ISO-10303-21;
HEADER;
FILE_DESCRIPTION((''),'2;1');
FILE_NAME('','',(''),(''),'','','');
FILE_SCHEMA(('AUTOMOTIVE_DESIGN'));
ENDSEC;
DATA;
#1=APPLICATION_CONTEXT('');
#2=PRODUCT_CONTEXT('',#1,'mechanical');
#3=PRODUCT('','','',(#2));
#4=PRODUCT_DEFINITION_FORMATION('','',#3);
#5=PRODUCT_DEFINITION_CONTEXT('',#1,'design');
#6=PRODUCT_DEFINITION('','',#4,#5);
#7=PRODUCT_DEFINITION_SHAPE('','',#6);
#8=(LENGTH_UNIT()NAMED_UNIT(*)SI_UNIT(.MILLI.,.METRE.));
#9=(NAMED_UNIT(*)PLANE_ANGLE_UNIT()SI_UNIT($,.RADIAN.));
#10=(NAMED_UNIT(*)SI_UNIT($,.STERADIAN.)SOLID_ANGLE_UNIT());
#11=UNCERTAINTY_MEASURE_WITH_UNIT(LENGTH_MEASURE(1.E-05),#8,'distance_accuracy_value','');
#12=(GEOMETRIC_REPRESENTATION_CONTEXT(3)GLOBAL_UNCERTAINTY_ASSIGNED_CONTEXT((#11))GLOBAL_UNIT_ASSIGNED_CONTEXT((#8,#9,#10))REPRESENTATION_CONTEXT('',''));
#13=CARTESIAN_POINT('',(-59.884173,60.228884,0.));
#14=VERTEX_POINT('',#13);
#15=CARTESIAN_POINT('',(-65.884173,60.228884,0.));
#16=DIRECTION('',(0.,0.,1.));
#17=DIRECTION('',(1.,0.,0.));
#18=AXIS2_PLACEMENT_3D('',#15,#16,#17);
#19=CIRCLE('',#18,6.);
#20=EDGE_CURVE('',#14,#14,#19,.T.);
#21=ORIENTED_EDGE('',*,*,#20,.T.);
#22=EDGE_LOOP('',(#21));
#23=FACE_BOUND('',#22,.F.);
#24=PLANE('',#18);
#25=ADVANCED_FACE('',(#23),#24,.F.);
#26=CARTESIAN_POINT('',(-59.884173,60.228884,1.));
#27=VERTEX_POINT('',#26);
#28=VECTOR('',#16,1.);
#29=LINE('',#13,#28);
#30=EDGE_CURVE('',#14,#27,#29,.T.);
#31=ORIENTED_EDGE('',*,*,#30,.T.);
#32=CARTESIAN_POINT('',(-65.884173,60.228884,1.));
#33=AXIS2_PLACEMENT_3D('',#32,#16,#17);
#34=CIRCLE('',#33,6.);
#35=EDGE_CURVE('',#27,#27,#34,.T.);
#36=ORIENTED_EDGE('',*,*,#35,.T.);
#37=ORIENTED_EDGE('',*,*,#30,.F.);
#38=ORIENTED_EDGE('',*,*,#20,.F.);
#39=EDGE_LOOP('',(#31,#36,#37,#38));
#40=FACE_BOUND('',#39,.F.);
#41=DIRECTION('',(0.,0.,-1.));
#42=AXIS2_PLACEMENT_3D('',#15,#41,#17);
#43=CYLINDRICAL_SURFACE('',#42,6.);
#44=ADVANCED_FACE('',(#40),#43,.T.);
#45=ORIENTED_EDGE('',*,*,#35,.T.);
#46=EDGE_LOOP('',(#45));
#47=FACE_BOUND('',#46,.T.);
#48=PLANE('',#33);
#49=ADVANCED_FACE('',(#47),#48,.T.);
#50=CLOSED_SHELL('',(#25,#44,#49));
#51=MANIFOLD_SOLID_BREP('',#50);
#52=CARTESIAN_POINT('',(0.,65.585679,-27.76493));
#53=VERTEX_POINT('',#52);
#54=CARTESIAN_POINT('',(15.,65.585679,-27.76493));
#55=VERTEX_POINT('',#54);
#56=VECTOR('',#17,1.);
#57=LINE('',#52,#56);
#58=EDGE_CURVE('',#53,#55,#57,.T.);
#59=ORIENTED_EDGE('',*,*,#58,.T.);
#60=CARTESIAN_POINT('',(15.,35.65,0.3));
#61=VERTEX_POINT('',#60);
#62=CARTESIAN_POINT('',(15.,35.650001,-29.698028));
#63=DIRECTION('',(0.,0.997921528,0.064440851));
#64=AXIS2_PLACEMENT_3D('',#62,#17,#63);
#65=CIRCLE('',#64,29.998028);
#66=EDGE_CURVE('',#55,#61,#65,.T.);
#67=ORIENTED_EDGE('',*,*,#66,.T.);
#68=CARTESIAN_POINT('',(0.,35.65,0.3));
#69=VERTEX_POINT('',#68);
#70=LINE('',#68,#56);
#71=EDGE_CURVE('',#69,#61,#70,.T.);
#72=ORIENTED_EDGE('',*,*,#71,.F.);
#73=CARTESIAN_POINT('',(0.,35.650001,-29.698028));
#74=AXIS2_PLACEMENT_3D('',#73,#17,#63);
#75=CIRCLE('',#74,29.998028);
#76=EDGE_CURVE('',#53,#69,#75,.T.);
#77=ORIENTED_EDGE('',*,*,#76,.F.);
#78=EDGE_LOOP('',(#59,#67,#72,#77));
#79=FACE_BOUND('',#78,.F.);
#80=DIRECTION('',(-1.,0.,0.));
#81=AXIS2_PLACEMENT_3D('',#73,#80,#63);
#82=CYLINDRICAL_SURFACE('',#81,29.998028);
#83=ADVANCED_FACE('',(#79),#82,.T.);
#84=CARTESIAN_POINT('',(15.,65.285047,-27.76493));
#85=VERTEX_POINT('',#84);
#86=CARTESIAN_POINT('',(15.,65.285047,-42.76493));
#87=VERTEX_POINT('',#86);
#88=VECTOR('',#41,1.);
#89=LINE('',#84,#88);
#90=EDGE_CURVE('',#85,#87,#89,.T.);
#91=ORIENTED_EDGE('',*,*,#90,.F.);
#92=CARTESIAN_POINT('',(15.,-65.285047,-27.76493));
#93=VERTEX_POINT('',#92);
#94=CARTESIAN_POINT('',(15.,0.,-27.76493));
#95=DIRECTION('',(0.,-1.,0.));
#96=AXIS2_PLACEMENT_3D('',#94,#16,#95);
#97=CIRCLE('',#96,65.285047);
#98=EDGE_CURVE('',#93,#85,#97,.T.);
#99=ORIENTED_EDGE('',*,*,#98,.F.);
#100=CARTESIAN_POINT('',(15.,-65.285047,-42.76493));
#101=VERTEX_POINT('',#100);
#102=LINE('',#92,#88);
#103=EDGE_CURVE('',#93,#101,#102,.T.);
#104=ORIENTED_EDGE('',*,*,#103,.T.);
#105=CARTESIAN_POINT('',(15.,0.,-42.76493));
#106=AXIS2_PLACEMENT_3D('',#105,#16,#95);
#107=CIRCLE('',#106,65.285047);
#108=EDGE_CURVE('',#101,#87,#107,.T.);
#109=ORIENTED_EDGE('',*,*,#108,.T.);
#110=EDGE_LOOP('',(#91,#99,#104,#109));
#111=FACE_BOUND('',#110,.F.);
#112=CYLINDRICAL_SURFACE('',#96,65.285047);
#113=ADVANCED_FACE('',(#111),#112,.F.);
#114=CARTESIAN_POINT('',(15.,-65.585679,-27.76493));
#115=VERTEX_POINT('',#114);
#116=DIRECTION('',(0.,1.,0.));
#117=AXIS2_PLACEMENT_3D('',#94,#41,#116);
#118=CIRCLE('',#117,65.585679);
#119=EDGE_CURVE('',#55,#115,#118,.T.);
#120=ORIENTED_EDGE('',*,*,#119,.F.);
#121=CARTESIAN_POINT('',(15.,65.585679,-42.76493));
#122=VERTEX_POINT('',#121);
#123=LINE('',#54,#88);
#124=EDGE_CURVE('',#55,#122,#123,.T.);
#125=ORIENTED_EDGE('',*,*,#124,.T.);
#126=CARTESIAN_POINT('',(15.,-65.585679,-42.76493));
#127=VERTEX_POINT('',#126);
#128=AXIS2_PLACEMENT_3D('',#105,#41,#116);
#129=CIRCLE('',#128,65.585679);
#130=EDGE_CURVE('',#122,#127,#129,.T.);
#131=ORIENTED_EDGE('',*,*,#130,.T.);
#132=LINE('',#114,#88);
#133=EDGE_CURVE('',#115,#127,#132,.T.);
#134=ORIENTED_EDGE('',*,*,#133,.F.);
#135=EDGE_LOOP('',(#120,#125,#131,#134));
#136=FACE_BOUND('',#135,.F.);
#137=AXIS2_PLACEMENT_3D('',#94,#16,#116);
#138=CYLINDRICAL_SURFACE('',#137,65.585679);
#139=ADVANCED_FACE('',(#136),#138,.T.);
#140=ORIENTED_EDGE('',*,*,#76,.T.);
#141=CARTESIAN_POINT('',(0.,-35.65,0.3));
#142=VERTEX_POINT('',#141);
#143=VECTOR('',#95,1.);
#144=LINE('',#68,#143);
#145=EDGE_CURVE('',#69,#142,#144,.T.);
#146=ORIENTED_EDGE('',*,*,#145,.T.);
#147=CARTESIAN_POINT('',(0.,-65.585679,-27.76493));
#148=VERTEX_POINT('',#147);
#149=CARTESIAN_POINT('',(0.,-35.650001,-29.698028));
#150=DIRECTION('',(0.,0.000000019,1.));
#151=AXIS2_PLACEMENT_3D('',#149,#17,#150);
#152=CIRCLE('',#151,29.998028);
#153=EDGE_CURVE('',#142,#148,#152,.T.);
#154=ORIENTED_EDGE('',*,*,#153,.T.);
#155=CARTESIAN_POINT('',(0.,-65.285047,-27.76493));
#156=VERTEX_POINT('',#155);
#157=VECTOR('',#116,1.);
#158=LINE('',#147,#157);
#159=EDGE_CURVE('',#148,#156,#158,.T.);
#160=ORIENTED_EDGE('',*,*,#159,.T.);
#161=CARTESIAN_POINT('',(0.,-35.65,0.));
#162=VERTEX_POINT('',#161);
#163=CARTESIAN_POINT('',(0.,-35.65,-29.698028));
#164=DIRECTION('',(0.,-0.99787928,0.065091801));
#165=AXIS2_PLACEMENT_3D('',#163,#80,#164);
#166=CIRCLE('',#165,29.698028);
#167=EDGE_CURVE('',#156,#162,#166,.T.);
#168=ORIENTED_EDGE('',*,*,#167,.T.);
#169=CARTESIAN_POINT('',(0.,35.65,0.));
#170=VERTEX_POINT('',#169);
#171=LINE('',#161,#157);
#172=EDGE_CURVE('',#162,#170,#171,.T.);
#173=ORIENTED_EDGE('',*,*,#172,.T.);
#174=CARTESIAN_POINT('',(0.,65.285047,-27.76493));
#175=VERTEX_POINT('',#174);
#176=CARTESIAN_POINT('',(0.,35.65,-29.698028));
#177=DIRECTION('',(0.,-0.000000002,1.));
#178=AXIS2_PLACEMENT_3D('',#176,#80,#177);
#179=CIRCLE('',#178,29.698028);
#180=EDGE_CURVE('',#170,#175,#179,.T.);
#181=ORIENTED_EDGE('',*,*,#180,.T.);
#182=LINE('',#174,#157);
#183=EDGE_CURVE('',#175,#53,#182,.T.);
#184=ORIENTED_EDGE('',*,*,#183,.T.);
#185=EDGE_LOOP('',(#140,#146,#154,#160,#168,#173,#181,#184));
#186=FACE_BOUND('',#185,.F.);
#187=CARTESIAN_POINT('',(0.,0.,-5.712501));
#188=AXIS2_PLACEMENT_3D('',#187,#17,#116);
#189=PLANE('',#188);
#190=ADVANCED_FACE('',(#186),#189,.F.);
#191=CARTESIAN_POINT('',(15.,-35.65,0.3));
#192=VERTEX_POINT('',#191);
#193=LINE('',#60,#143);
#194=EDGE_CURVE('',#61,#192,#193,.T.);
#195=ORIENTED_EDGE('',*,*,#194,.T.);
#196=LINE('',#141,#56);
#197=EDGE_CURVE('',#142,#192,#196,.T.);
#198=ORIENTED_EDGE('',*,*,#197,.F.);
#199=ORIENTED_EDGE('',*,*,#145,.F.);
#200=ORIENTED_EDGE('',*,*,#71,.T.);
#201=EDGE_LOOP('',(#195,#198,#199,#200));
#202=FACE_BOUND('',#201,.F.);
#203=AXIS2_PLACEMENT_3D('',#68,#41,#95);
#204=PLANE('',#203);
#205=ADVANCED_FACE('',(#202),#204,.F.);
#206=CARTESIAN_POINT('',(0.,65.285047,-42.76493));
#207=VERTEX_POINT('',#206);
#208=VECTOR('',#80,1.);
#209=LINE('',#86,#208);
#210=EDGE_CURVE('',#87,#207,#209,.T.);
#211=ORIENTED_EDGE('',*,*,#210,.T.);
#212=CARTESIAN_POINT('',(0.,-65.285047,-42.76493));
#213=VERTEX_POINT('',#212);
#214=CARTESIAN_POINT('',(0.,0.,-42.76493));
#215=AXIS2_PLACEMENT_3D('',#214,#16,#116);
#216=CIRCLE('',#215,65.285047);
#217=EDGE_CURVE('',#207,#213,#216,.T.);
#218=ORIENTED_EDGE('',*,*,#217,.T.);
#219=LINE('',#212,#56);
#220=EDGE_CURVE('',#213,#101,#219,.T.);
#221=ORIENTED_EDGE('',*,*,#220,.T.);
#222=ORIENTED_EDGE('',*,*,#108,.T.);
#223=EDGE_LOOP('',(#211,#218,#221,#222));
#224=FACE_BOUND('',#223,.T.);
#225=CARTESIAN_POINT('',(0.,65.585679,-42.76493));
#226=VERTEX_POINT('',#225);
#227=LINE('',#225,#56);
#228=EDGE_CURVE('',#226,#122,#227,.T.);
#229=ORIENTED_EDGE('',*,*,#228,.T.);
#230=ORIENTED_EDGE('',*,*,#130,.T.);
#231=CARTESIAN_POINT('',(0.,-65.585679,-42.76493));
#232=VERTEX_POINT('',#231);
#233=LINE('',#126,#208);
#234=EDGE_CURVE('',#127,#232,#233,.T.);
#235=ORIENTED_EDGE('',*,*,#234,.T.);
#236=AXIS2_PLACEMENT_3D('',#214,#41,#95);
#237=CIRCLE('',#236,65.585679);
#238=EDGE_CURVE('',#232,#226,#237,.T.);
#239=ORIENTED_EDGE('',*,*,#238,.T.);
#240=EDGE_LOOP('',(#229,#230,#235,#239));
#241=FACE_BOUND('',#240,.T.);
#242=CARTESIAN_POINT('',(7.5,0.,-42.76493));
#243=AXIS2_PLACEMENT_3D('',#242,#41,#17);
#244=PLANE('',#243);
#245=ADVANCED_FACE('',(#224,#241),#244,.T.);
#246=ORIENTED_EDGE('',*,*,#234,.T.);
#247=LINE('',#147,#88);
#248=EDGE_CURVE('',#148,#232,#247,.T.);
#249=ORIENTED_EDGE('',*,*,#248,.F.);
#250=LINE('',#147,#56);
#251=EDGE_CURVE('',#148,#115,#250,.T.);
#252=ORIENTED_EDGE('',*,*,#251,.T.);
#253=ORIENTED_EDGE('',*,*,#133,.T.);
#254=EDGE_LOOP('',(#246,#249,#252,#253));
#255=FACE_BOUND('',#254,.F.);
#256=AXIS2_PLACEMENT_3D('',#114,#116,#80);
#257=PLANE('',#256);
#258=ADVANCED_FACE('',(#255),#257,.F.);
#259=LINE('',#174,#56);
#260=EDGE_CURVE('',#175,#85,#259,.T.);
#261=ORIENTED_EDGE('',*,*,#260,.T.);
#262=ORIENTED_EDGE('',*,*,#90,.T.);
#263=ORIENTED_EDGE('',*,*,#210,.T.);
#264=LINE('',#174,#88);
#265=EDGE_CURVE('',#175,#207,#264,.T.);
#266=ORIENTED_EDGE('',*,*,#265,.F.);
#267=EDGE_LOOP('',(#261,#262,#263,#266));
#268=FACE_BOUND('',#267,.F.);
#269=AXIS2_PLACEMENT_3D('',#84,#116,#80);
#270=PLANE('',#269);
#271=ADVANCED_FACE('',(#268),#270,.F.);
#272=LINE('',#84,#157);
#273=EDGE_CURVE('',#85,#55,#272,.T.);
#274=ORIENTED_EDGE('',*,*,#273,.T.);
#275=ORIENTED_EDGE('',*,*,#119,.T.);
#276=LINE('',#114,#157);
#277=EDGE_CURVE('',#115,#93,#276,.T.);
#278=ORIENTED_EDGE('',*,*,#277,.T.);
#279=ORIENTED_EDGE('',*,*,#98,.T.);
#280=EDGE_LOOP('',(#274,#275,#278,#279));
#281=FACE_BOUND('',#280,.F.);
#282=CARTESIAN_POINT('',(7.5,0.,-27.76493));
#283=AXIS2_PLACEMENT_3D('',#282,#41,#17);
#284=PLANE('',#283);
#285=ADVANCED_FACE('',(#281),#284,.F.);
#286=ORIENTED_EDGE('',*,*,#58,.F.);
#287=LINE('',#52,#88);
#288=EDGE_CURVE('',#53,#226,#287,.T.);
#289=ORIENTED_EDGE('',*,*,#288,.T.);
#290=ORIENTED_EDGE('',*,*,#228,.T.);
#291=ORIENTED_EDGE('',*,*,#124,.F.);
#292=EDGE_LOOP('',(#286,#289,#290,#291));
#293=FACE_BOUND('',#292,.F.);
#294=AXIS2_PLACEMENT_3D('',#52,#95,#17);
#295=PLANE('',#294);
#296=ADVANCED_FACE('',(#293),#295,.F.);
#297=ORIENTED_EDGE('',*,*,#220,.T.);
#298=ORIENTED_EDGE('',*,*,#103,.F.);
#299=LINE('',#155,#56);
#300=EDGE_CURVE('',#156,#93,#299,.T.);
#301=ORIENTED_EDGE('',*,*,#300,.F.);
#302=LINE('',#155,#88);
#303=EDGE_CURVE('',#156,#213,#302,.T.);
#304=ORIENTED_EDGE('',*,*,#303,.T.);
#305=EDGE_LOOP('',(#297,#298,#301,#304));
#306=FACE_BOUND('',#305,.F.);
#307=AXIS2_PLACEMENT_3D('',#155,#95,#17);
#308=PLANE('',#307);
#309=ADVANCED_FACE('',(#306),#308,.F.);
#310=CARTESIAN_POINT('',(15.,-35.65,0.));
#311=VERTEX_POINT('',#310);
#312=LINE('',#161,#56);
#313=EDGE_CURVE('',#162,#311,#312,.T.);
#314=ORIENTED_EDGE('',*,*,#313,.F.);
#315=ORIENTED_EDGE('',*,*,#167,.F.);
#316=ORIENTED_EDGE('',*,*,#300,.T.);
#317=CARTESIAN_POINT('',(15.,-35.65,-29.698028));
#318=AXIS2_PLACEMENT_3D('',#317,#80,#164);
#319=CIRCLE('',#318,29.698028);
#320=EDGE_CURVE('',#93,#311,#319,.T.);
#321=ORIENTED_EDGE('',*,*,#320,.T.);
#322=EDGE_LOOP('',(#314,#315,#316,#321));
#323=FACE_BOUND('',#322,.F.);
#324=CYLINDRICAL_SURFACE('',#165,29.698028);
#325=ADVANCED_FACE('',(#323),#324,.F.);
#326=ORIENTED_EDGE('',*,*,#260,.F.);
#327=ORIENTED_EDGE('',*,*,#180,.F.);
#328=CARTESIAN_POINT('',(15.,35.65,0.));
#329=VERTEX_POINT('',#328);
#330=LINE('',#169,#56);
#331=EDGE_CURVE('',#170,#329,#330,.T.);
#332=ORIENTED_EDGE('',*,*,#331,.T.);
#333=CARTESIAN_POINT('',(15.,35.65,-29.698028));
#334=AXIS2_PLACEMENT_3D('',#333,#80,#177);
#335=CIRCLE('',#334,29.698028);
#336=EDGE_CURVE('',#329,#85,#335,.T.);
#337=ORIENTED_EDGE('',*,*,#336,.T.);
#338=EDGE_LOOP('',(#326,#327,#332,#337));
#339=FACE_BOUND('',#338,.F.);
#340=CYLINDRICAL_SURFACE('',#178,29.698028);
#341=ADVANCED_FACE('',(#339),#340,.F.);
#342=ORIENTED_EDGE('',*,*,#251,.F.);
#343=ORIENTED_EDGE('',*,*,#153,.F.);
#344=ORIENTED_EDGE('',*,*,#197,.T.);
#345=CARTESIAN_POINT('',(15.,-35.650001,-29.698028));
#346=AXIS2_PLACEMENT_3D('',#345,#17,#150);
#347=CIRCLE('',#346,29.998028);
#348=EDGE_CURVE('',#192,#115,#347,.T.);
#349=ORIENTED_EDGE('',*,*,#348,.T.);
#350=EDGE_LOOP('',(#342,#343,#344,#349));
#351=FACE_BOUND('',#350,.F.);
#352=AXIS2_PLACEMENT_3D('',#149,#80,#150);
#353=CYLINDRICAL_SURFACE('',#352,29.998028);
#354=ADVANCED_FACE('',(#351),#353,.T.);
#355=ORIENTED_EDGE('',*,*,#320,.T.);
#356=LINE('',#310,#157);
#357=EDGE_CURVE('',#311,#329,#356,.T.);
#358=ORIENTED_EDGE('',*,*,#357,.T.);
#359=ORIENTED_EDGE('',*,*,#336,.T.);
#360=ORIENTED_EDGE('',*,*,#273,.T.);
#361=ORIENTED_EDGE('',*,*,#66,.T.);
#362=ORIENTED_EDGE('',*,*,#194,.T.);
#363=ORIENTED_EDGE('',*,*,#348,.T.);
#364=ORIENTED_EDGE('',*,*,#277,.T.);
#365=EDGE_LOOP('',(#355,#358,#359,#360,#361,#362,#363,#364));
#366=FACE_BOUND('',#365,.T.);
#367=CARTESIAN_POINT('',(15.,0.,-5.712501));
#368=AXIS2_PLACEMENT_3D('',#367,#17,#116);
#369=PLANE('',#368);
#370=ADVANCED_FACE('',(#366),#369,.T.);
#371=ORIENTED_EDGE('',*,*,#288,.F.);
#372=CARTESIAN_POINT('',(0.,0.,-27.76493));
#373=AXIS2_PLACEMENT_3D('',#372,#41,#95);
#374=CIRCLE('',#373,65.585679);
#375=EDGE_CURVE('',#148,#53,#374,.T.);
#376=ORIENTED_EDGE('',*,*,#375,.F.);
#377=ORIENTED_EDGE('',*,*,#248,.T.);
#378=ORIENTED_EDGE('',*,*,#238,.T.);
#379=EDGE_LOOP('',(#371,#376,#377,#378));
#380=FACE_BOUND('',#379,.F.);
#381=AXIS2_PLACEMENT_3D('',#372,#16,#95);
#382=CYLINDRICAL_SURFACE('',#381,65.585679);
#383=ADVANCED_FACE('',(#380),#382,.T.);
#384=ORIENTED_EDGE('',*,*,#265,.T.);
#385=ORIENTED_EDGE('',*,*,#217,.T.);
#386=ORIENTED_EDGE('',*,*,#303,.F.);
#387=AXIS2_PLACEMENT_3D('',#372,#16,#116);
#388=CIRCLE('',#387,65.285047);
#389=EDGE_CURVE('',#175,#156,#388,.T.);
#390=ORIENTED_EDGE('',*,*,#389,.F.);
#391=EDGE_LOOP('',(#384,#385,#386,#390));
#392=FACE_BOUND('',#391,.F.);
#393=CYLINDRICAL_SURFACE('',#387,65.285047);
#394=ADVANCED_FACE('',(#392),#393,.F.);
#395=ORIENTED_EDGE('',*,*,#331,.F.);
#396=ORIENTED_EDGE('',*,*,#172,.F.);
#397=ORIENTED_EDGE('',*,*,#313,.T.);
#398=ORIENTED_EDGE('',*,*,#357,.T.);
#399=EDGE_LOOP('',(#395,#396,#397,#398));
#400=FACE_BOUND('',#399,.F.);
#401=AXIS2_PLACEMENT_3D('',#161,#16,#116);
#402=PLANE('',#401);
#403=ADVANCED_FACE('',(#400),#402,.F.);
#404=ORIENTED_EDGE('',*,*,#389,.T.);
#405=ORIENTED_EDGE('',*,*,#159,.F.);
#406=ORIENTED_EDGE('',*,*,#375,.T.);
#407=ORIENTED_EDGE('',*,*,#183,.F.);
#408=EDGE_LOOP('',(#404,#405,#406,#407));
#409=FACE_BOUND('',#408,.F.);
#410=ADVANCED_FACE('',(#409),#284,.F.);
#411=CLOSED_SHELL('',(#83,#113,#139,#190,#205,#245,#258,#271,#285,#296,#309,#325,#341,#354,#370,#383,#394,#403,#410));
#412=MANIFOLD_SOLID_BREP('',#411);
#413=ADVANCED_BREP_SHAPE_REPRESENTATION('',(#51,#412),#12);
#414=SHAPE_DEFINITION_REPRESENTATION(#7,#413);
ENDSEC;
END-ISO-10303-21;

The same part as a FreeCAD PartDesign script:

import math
import FreeCAD as App
import Part
import Sketcher
from FreeCAD import Vector

doc = App.newDocument("Part")
params = doc.addObject("Spreadsheet::Sheet", "Params")
for row, (alias, value) in enumerate([
    ("sketch1_width", "71.3 mm"),
    ("pad1_length", "15 mm"),
    ("sketch2_width", "15 mm"),
    ("pad2_length", "15 mm"),
    ("sketch3_diameter", "12 mm"),
    ("pad3_length", "1 mm"),
], start=1):
    params.set(f"A{row}", alias)
    params.set(f"B{row}", "=" + value)
    params.setAlias(f"B{row}", alias)

body = doc.addObject("PartDesign::Body", "Body")

# Sketch on YZ plane
sketch1 = doc.addObject("Sketcher::SketchObject", "Sketch")
body.addObject(sketch1)
sketch1.AttachmentSupport = (doc.YZ_Plane, [""])
sketch1.MapMode = "FlatFace"
sketch1.addGeometry([
    Part.ArcOfCircle(Part.Circle(Vector(-35.65, -29.7, 0), Vector(0, 0, 1), 29.7), math.radians(90), math.radians(176)),  # 0
    Part.LineSegment(Vector(-35.65, 0, 0), Vector(35.65, 0, 0)),  # 1
    Part.ArcOfCircle(Part.Circle(Vector(35.65, -29.7, 0), Vector(0, 0, 1), 29.7), math.radians(4), math.radians(90)),  # 2
    Part.LineSegment(Vector(65.29, -27.76, 0), Vector(65.59, -27.76, 0)),  # 3
    Part.ArcOfCircle(Part.Circle(Vector(35.65, -29.7, 0), Vector(0, 0, 1), 30), math.radians(4), math.radians(90)),  # 4
    Part.LineSegment(Vector(35.65, 0.3, 0), Vector(-35.65, 0.3, 0)),  # 5
    Part.ArcOfCircle(Part.Circle(Vector(-35.65, -29.7, 0), Vector(0, 0, 1), 30), math.radians(90), math.radians(176)),  # 6
    Part.LineSegment(Vector(-65.59, -27.76, 0), Vector(-65.29, -27.76, 0)),  # 7
], False)
sketch1.addConstraint([
    Sketcher.Constraint("Tangent", 0, 1, 1, 1),
    Sketcher.Constraint("Tangent", 1, 2, 2, 2),
    Sketcher.Constraint("Coincident", 2, 1, 3, 1),
    Sketcher.Constraint("Coincident", 3, 2, 4, 1),
    Sketcher.Constraint("Tangent", 4, 2, 5, 1),
    Sketcher.Constraint("Tangent", 5, 2, 6, 1),
    Sketcher.Constraint("Coincident", 6, 2, 7, 1),
    Sketcher.Constraint("Coincident", 7, 2, 0, 2),
    Sketcher.Constraint("Horizontal", 1),
    Sketcher.Constraint("Horizontal", 3),
    Sketcher.Constraint("Horizontal", 5),
    Sketcher.Constraint("Horizontal", 7),
    Sketcher.Constraint("Coincident", 4, 3, 2, 3),
    Sketcher.Constraint("Coincident", 6, 3, 0, 3),
    Sketcher.Constraint("Equal", 0, 2),
    Sketcher.Constraint("Symmetric", 0, 1, 1, 2, -1, 1),
    Sketcher.Constraint("Horizontal", 3, 2, 6, 2),
    Sketcher.Constraint("DistanceX", 1, 1, 1, 2, 71.3),
    Sketcher.Constraint("DistanceY", -1, 1, 4, 2, 0.3),
    Sketcher.Constraint("Radius", 0, 29.698028),
    Sketcher.Constraint("DistanceY", 4, 3, 2, 1, 1.933098),
])
sketch1.setExpression("Constraints[17]", "Params.sketch1_width")
pad1 = doc.addObject("PartDesign::Pad", "Pad")
body.addObject(pad1)
pad1.Profile = sketch1
pad1.setExpression("Length", "Params.pad1_length")

# Sketch on XY plane
sketch2 = doc.addObject("Sketcher::SketchObject", "Sketch001")
body.addObject(sketch2)
sketch2.AttachmentSupport = (doc.XY_Plane, [""])
sketch2.MapMode = "FlatFace"
sketch2.AttachmentOffset = App.Placement(Vector(0, 0, -27.76493), App.Rotation())
sketch2.addGeometry([
    Part.LineSegment(Vector(0, 66, 0), Vector(15, 66, 0)),  # 0
    Part.ArcOfCircle(Part.Circle(Vector(15, 0, 0), Vector(0, 0, 1), 66), math.radians(-90), math.radians(90)),  # 1
    Part.LineSegment(Vector(15, -66, 0), Vector(0, -66, 0)),  # 2
    Part.ArcOfCircle(Part.Circle(Vector(0, 0, 0), Vector(0, 0, 1), 66), math.radians(90), math.radians(270)),  # 3
    Part.LineSegment(Vector(0, -65, 0), Vector(15, -65, 0)),  # 4
    Part.ArcOfCircle(Part.Circle(Vector(15, 0, 0), Vector(0, 0, 1), 65), math.radians(-90), math.radians(90)),  # 5
    Part.LineSegment(Vector(15, 65, 0), Vector(0, 65, 0)),  # 6
    Part.ArcOfCircle(Part.Circle(Vector(0, 0, 0), Vector(0, 0, 1), 65), math.radians(90), math.radians(270)),  # 7
], False)
sketch2.addConstraint([
    Sketcher.Constraint("Tangent", 0, 2, 1, 2),
    Sketcher.Constraint("Tangent", 1, 1, 2, 1),
    Sketcher.Constraint("Tangent", 2, 2, 3, 2),
    Sketcher.Constraint("Tangent", 3, 1, 0, 1),
    Sketcher.Constraint("Tangent", 4, 2, 5, 1),
    Sketcher.Constraint("Tangent", 5, 2, 6, 1),
    Sketcher.Constraint("Tangent", 6, 2, 7, 1),
    Sketcher.Constraint("Tangent", 7, 2, 4, 1),
    Sketcher.Constraint("Horizontal", 0),
    Sketcher.Constraint("Horizontal", 2),
    Sketcher.Constraint("Horizontal", 4),
    Sketcher.Constraint("Horizontal", 6),
    Sketcher.Constraint("Coincident", 3, 3, -1, 1),
    Sketcher.Constraint("Coincident", 7, 3, -1, 1),
    Sketcher.Constraint("Vertical", 5, 3, 0, 2),
    Sketcher.Constraint("DistanceX", 0, 1, 0, 2, 15.0),
    Sketcher.Constraint("Radius", 1, 65.585679),
    Sketcher.Constraint("Radius", 5, 65.285047),
])
sketch2.setExpression("Constraints[15]", "Params.sketch2_width")
pad2 = doc.addObject("PartDesign::Pad", "Pad001")
body.addObject(pad2)
pad2.Profile = sketch2
pad2.setExpression("Length", "Params.pad2_length")
pad2.Reversed = True
body2 = doc.addObject("PartDesign::Body", "Body001")

# Sketch on XY plane
sketch3 = doc.addObject("Sketcher::SketchObject", "Sketch002")
body2.addObject(sketch3)
sketch3.AttachmentSupport = (doc.getObject("XY_Plane001"), [""])
sketch3.MapMode = "FlatFace"
sketch3.addGeometry(Part.Circle(Vector(-66, 60, 0), Vector(0, 0, 1), 6), False)
sketch3.addConstraint([
    Sketcher.Constraint("Diameter", 0, 12.0),
    Sketcher.Constraint("DistanceX", 0, 3, -1, 1, 65.884173),
    Sketcher.Constraint("DistanceY", -1, 1, 0, 3, 60.228884),
])
sketch3.setExpression("Constraints[0]", "Params.sketch3_diameter")
pad3 = doc.addObject("PartDesign::Pad", "Pad002")
body2.addObject(pad3)
pad3.Profile = sketch3
pad3.setExpression("Length", "Params.pad3_length")

doc.recompute()
